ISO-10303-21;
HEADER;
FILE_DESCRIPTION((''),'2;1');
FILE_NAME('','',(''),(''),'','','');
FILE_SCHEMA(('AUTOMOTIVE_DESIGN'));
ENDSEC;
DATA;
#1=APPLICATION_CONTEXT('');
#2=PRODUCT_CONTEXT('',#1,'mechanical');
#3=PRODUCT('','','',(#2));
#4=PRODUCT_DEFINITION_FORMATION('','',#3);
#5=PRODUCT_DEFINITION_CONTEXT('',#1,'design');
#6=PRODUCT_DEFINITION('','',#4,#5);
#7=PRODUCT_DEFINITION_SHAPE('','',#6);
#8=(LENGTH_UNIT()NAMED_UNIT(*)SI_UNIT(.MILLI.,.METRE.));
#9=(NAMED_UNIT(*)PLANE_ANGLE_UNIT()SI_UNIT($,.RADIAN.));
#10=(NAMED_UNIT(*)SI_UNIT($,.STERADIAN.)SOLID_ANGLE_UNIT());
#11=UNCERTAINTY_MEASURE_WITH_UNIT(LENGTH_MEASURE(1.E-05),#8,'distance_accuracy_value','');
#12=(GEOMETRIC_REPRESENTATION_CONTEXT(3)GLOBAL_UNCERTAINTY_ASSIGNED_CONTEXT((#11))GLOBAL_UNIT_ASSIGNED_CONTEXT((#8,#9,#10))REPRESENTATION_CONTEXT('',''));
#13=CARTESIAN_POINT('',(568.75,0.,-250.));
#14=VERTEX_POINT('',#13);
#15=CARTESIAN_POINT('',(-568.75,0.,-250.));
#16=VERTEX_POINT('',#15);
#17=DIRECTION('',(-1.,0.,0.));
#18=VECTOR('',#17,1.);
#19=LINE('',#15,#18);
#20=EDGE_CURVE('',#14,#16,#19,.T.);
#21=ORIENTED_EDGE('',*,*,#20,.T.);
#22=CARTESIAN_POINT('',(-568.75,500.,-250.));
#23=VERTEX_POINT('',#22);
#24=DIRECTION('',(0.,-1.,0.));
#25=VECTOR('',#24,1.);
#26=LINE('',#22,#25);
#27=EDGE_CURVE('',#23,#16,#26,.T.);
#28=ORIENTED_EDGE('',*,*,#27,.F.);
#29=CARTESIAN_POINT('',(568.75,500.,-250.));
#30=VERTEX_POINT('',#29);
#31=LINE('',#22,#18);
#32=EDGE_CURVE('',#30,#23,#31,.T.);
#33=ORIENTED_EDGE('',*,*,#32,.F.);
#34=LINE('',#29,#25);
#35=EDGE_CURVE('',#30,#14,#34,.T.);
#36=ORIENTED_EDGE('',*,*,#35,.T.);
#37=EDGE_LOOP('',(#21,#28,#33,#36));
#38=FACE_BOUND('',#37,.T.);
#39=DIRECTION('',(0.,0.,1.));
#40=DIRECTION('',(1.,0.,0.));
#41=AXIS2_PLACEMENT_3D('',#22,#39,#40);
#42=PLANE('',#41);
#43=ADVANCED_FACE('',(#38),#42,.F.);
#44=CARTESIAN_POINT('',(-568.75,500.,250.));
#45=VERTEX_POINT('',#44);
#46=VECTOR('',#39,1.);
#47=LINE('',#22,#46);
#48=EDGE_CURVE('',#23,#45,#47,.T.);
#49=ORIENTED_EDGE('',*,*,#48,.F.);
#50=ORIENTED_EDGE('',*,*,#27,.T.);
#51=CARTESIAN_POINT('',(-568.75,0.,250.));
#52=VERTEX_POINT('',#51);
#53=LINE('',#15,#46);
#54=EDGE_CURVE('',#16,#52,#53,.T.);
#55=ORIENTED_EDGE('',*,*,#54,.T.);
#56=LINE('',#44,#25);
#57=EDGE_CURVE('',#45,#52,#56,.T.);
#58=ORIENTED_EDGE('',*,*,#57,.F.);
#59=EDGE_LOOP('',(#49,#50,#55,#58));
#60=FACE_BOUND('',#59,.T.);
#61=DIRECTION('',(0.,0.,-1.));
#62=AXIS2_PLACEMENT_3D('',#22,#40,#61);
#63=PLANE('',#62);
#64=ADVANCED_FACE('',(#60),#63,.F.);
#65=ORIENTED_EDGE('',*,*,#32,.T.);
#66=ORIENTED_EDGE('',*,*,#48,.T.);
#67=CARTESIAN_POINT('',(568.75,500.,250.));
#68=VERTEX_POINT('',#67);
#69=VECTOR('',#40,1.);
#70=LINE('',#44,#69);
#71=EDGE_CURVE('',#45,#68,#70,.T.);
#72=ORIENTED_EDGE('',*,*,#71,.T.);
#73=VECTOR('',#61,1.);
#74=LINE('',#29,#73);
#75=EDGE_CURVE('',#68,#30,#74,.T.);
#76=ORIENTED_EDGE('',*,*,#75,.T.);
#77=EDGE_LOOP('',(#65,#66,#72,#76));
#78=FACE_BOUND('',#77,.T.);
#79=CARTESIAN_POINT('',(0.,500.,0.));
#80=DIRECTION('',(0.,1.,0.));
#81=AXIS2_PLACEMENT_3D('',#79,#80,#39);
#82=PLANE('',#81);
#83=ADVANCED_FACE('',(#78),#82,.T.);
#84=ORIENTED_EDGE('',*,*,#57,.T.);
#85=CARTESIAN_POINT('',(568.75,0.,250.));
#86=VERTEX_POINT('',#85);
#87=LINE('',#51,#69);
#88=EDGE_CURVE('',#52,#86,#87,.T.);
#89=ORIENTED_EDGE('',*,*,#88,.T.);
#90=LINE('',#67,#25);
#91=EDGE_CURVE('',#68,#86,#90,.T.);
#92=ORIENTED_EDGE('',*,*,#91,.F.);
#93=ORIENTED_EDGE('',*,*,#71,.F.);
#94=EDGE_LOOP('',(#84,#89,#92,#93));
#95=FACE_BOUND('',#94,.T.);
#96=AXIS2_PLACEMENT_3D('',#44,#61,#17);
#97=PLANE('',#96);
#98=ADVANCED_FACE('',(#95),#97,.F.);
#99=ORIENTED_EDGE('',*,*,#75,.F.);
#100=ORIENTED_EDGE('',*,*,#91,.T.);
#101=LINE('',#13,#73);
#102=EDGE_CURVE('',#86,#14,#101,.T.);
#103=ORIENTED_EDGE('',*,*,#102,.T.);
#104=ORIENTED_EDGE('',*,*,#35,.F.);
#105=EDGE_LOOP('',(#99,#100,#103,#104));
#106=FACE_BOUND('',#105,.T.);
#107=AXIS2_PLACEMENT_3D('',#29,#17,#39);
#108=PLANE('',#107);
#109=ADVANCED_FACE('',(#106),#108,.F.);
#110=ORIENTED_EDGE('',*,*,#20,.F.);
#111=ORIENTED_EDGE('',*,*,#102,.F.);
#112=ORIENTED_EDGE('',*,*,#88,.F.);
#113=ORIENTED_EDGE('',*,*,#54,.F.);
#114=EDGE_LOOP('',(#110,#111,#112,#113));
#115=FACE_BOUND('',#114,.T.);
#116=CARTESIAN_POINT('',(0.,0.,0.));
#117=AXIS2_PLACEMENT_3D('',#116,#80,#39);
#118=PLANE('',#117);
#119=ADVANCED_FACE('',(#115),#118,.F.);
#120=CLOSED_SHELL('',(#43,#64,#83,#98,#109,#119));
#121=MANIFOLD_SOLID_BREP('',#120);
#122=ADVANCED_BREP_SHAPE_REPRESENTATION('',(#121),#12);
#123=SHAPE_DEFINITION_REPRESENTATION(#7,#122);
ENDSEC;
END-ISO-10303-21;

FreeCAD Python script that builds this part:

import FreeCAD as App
import Part
import Sketcher
from FreeCAD import Vector

doc = App.newDocument("Part")
body = doc.addObject("PartDesign::Body", "Body")

# Sketch on XZ plane
sketch1 = body.newObject("Sketcher::SketchObject", "Sketch")
sketch1.AttachmentSupport = (doc.getObject("XZ_Plane"), [""])
sketch1.MapMode = "FlatFace"
sketch1.addGeometry(Part.LineSegment(Vector(-569, -250, 0), Vector(-569, 250, 0)), False)
sketch1.addGeometry(Part.LineSegment(Vector(-569, 250, 0), Vector(569, 250, 0)), False)
sketch1.addGeometry(Part.LineSegment(Vector(569, 250, 0), Vector(569, -250, 0)), False)
sketch1.addGeometry(Part.LineSegment(Vector(569, -250, 0), Vector(-569, -250, 0)), False)
sketch1.addConstraint(Sketcher.Constraint("Coincident", 0, 2, 1, 1))
sketch1.addConstraint(Sketcher.Constraint("Coincident", 1, 2, 2, 1))
sketch1.addConstraint(Sketcher.Constraint("Coincident", 2, 2, 3, 1))
sketch1.addConstraint(Sketcher.Constraint("Coincident", 3, 2, 0, 1))
sketch1.addConstraint(Sketcher.Constraint("Vertical", 0))
sketch1.addConstraint(Sketcher.Constraint("Horizontal", 1))
sketch1.addConstraint(Sketcher.Constraint("Vertical", 2))
sketch1.addConstraint(Sketcher.Constraint("Horizontal", 3))
sketch1.addConstraint(Sketcher.Constraint("Symmetric", 0, 2, 2, 2, -1, 1))
sketch1.addConstraint(Sketcher.Constraint("DistanceY", 0, 1, 0, 2, 500.0))
sketch1.addConstraint(Sketcher.Constraint("DistanceX", 1, 1, 1, 2, 1137.5))
pad1 = body.newObject("PartDesign::Pad", "Pad")
pad1.Profile = sketch1
pad1.Length = 500
pad1.Reversed = True

doc.recompute()
